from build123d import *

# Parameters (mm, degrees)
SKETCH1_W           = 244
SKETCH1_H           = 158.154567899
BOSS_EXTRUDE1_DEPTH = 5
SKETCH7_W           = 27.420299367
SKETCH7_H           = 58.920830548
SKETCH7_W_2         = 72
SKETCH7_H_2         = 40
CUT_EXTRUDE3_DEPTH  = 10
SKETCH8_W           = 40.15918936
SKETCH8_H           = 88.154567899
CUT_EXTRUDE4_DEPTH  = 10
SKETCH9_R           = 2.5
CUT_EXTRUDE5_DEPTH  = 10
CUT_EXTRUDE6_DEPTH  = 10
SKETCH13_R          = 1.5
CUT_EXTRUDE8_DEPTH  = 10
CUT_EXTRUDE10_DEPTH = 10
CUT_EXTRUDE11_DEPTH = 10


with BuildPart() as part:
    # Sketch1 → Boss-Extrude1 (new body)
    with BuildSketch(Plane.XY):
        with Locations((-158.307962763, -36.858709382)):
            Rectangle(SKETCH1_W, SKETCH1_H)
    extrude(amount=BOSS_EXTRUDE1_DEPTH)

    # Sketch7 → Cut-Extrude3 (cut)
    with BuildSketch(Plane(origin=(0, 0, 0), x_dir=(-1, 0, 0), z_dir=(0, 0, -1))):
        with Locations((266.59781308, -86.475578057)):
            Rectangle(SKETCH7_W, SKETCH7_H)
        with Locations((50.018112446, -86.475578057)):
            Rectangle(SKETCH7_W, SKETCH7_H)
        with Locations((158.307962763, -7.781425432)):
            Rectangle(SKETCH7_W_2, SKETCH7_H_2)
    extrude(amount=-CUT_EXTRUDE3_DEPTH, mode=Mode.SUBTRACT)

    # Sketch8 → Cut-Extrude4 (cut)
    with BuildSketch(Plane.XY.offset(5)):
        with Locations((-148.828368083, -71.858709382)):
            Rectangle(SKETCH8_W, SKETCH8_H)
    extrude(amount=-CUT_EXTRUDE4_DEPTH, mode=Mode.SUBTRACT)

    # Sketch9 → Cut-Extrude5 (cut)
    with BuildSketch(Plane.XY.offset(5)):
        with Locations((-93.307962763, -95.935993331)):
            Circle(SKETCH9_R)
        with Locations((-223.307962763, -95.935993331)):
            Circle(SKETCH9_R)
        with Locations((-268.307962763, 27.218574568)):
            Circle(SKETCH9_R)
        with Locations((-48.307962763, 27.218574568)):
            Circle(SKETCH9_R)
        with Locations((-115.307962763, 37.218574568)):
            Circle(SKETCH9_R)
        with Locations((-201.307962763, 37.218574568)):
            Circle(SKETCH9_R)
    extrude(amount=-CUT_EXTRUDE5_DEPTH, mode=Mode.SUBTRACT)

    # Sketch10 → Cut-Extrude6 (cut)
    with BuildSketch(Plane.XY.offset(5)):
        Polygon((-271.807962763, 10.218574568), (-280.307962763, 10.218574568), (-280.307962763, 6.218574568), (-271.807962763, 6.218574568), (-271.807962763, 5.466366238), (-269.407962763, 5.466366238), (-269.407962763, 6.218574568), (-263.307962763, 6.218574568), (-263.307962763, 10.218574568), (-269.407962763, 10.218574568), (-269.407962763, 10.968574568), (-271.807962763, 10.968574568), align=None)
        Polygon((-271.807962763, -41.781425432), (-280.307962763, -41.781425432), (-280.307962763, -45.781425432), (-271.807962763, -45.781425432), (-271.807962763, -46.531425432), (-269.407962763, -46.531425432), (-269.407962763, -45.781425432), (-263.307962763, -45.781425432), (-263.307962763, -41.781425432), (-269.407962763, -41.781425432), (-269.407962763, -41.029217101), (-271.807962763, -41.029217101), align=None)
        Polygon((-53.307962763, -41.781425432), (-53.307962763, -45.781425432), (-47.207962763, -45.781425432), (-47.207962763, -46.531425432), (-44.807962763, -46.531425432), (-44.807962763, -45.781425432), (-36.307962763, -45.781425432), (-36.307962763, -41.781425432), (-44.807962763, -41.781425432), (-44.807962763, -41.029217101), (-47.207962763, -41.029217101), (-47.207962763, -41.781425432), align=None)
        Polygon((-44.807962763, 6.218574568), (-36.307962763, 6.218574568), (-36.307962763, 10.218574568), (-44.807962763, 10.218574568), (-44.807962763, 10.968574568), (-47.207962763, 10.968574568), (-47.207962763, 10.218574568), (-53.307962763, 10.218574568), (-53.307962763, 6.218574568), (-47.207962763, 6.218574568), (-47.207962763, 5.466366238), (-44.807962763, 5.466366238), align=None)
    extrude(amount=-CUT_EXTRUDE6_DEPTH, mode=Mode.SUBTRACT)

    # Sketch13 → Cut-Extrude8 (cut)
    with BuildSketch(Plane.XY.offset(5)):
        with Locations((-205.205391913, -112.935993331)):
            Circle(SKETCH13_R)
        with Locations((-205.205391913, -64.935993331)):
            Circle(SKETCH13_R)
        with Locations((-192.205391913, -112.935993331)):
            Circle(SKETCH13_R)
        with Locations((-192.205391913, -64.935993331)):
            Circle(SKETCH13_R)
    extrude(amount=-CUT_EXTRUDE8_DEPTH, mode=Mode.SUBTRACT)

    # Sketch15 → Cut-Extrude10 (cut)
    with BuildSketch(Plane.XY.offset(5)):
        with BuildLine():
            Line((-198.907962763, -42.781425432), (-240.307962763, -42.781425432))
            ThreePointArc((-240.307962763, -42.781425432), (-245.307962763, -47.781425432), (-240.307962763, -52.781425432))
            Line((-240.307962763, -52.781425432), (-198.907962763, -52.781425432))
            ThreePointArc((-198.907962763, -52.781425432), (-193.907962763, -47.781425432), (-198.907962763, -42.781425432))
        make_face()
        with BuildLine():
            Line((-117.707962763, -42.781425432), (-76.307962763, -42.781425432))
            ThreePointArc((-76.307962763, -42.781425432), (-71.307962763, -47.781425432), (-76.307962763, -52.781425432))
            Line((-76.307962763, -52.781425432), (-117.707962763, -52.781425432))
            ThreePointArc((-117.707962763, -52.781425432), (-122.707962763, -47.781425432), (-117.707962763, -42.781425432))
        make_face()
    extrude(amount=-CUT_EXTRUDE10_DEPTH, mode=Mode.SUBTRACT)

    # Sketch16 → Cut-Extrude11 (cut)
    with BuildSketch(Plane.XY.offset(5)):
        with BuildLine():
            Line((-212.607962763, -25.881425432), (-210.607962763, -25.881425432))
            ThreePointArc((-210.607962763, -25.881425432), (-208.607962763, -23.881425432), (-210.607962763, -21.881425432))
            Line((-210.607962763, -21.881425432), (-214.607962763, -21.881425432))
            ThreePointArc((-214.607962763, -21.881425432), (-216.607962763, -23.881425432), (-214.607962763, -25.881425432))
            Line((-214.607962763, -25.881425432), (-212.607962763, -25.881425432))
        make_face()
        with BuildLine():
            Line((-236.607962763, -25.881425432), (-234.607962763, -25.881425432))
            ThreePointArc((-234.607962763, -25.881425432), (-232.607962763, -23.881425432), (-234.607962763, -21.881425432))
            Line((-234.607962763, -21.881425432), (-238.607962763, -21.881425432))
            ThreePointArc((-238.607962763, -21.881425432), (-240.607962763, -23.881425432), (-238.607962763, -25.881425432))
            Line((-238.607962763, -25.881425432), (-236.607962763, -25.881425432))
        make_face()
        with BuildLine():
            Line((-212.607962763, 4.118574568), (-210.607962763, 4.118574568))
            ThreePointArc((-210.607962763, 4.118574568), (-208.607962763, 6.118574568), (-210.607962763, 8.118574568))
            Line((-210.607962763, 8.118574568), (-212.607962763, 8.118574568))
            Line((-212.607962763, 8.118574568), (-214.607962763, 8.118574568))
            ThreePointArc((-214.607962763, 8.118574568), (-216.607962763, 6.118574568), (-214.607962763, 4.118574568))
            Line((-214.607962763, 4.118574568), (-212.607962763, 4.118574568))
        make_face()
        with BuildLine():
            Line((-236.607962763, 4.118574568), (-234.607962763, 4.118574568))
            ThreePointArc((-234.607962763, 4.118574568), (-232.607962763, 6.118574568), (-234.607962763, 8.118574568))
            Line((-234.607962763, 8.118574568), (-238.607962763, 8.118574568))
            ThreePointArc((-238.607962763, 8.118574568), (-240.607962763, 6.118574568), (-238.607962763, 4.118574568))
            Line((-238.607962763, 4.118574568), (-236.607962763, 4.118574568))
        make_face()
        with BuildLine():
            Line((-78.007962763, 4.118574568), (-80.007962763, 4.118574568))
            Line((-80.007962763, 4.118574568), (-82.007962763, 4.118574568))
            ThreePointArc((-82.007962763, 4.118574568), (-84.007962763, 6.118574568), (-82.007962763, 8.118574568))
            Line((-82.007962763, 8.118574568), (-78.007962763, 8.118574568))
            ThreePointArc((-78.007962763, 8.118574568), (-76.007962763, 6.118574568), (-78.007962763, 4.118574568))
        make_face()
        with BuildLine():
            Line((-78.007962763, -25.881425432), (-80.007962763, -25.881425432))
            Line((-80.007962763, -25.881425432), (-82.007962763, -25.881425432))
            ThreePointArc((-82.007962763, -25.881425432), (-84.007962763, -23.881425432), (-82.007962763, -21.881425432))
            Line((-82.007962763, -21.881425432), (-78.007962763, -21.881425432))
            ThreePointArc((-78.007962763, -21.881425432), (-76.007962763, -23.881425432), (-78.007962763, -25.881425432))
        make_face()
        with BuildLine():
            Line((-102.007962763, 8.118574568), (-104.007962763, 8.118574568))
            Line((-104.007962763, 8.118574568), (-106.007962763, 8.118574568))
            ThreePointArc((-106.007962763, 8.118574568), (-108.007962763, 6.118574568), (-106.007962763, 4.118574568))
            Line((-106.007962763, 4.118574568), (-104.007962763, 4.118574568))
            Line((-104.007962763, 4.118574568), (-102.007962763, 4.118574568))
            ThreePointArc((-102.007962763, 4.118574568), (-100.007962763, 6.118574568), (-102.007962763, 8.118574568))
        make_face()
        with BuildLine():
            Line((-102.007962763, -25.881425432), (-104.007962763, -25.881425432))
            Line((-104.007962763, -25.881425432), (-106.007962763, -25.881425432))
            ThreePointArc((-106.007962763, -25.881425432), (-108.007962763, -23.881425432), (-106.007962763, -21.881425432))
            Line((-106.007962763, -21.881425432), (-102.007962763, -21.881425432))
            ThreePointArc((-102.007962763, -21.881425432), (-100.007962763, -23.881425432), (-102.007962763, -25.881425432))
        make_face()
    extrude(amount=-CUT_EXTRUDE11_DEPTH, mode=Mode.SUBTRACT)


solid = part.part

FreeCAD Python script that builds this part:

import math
import FreeCAD as App
import Part
import Sketcher

V = App.Vector

doc = App.newDocument("Part")
params = doc.addObject("Spreadsheet::Sheet", "Params")
for row, (alias, value) in enumerate([
    ("sketch1_width", "244 mm"),
    ("pad1_length", "5 mm"),
    ("sketch2_width", "72 mm"),
    ("sketch2_height", "40 mm"),
    ("pocket1_length", "10 mm"),
    ("pocket2_length", "10 mm"),
    ("sketch4_diameter", "5 mm"),
    ("pocket3_length", "10 mm"),
    ("sketch5_height", "4 mm"),
    ("sketch5_width", "8.5 mm"),
    ("sketch5_width2", "2.4 mm"),
    ("sketch5_width3", "6.1 mm"),
    ("sketch5_height2", "0.75 mm"),
    ("pocket4_length", "10 mm"),
    ("sketch6_diameter", "3 mm"),
    ("pocket5_length", "10 mm"),
    ("sketch7_radius", "5 mm"),
    ("sketch7_width", "41.4 mm"),
    ("pocket6_length", "10 mm"),
    ("sketch8_radius", "2 mm"),
    ("sketch8_width", "4 mm"),
    ("pocket7_length", "10 mm"),
], start=1):
    params.set(f"A{row}", alias)
    params.set(f"B{row}", "=" + value)
    params.setAlias(f"B{row}", alias)

body = doc.addObject("PartDesign::Body", "Body")

# Sketch on XY plane
sketch1 = body.newObject("Sketcher::SketchObject", "Sketch")
sketch1.AttachmentSupport = (doc.getObject("XY_Plane"), [""])
sketch1.MapMode = "FlatFace"
sketch1.addGeometry([
    Part.LineSegment(V(-280, 42, 0), V(-280, -116, 0)),
    Part.LineSegment(V(-280, -116, 0), V(-36, -116, 0)),
    Part.LineSegment(V(-36, -116, 0), V(-36, 42, 0)),
    Part.LineSegment(V(-36, 42, 0), V(-280, 42, 0)),
], False)
sketch1.addConstraint([
    Sketcher.Constraint("Coincident", 0, 2, 1, 1),
    Sketcher.Constraint("Coincident", 1, 2, 2, 1),
    Sketcher.Constraint("Coincident", 2, 2, 3, 1),
    Sketcher.Constraint("Coincident", 3, 2, 0, 1),
    Sketcher.Constraint("Vertical", 0),
    Sketcher.Constraint("Horizontal", 1),
    Sketcher.Constraint("Vertical", 2),
    Sketcher.Constraint("Horizontal", 3),
    Sketcher.Constraint("DistanceX", 1, 1, 1, 2, 244.0),
    Sketcher.Constraint("DistanceY", 0, 2, 0, 1, 158.154568),
    Sketcher.Constraint("DistanceX", 0, 2, -1, 1, 280.307963),
    Sketcher.Constraint("DistanceY", 0, 2, -1, 1, 115.935993),
])
sketch1.setExpression("Constraints[8]", "Params.sketch1_width")
pad1 = body.newObject("PartDesign::Pad", "Pad")
pad1.Profile = sketch1
pad1.setExpression("Length", "Params.pad1_length")

# Sketch on XY plane
sketch2 = body.newObject("Sketcher::SketchObject", "Sketch001")
sketch2.AttachmentSupport = (doc.getObject("XY_Plane"), [""])
sketch2.MapMode = "FlatFace"
sketch2.addGeometry([
    Part.LineSegment(V(-253, -57, 0), V(-253, -116, 0)),  # 0
    Part.LineSegment(V(-253, -116, 0), V(-280, -116, 0)),  # 1
    Part.LineSegment(V(-280, -116, 0), V(-280, -57, 0)),  # 2
    Part.LineSegment(V(-280, -57, 0), V(-253, -57, 0)),  # 3
    Part.LineSegment(V(-36, -57, 0), V(-36, -116, 0)),  # 4
    Part.LineSegment(V(-36, -116, 0), V(-64, -116, 0)),  # 5
    Part.LineSegment(V(-64, -116, 0), V(-64, -57, 0)),  # 6
    Part.LineSegment(V(-64, -57, 0), V(-36, -57, 0)),  # 7
    Part.LineSegment(V(-122, 12, 0), V(-122, -28, 0)),  # 8
    Part.LineSegment(V(-122, -28, 0), V(-194, -28, 0)),  # 9
    Part.LineSegment(V(-194, -28, 0), V(-194, 12, 0)),  # 10
    Part.LineSegment(V(-194, 12, 0), V(-122, 12, 0)),  # 11
], False)
sketch2.addConstraint([
    Sketcher.Constraint("Coincident", 0, 2, 1, 1),
    Sketcher.Constraint("Coincident", 1, 2, 2, 1),
    Sketcher.Constraint("Coincident", 2, 2, 3, 1),
    Sketcher.Constraint("Coincident", 3, 2, 0, 1),
    Sketcher.Constraint("Coincident", 4, 2, 5, 1),
    Sketcher.Constraint("Coincident", 5, 2, 6, 1),
    Sketcher.Constraint("Coincident", 6, 2, 7, 1),
    Sketcher.Constraint("Coincident", 7, 2, 4, 1),
    Sketcher.Constraint("Coincident", 8, 2, 9, 1),
    Sketcher.Constraint("Coincident", 9, 2, 10, 1),
    Sketcher.Constraint("Coincident", 10, 2, 11, 1),
    Sketcher.Constraint("Coincident", 11, 2, 8, 1),
    Sketcher.Constraint("Vertical", 0),
    Sketcher.Constraint("Horizontal", 1),
    Sketcher.Constraint("Vertical", 2),
    Sketcher.Constraint("Horizontal", 3),
    Sketcher.Constraint("Vertical", 4),
    Sketcher.Constraint("Horizontal", 5),
    Sketcher.Constraint("Vertical", 6),
    Sketcher.Constraint("Horizontal", 7),
    Sketcher.Constraint("Vertical", 8),
    Sketcher.Constraint("Horizontal", 9),
    Sketcher.Constraint("Vertical", 10),
    Sketcher.Constraint("Horizontal", 11),
    Sketcher.Constraint("Horizontal", 1, 2, 4, 2),
    Sketcher.Constraint("Horizontal", 3, 2, 6, 2),
    Sketcher.Constraint("Equal", 3, 5),
    Sketcher.Constraint("DistanceX", 9, 2, 9, 1, 72.0),
    Sketcher.Constraint("DistanceY", 8, 2, 8, 1, 40.0),
    Sketcher.Constraint("DistanceX", 1, 2, 4, 2, 244.0),
    Sketcher.Constraint("DistanceX", 8, 2, 7, 2, 86.0),
    Sketcher.Constraint("DistanceX", 1, 2, 1, 1, 27.420299),
    Sketcher.Constraint("DistanceY", 0, 2, 0, 1, 58.920831),
    Sketcher.Constraint("DistanceX", 0, 2, -1, 1, 252.887663),
    Sketcher.Constraint("DistanceY", 0, 2, -1, 1, 115.935993),
    Sketcher.Constraint("DistanceY", 8, 2, -1, 1, 27.781425),
])
sketch2.setExpression("Constraints[27]", "Params.sketch2_width")
sketch2.setExpression("Constraints[28]", "Params.sketch2_height")
pocket1 = body.newObject("PartDesign::Pocket", "Pocket")
pocket1.Profile = sketch2
pocket1.setExpression("Length", "Params.pocket1_length")
pocket1.Reversed = True

# Sketch on XY plane
sketch3 = body.newObject("Sketcher::SketchObject", "Sketch002")
sketch3.AttachmentSupport = (doc.getObject("XY_Plane"), [""])
sketch3.MapMode = "FlatFace"
sketch3.AttachmentOffset = App.Placement(V(0, 0, 5), App.Rotation())
sketch3.addGeometry([
    Part.LineSegment(V(-169, -28, 0), V(-169, -116, 0)),
    Part.LineSegment(V(-169, -116, 0), V(-129, -116, 0)),
    Part.LineSegment(V(-129, -116, 0), V(-129, -28, 0)),
    Part.LineSegment(V(-129, -28, 0), V(-169, -28, 0)),
], False)
sketch3.addConstraint([
    Sketcher.Constraint("Coincident", 0, 2, 1, 1),
    Sketcher.Constraint("Coincident", 1, 2, 2, 1),
    Sketcher.Constraint("Coincident", 2, 2, 3, 1),
    Sketcher.Constraint("Coincident", 3, 2, 0, 1),
    Sketcher.Constraint("Vertical", 0),
    Sketcher.Constraint("Horizontal", 1),
    Sketcher.Constraint("Vertical", 2),
    Sketcher.Constraint("Horizontal", 3),
    Sketcher.Constraint("DistanceX", 1, 1, 1, 2, 40.159189),
    Sketcher.Constraint("DistanceY", 0, 2, 0, 1, 88.154568),
    Sketcher.Constraint("DistanceX", 0, 2, -1, 1, 168.907963),
    Sketcher.Constraint("DistanceY", 0, 2, -1, 1, 115.935993),
])
pocket2 = body.newObject("PartDesign::Pocket", "Pocket001")
pocket2.Profile = sketch3
pocket2.setExpression("Length", "Params.pocket2_length")

# Sketch on XY plane
sketch4 = body.newObject("Sketcher::SketchObject", "Sketch003")
sketch4.AttachmentSupport = (doc.getObject("XY_Plane"), [""])
sketch4.MapMode = "FlatFace"
sketch4.AttachmentOffset = App.Placement(V(0, 0, 5), App.Rotation())
sketch4.addGeometry([
    Part.Circle(V(-93.3, -95.9, 0), V(0, 0, 1), 2.5),  # 0
    Part.Circle(V(-223.3, -95.9, 0), V(0, 0, 1), 2.5),  # 1
    Part.Circle(V(-268.3, 27.2, 0), V(0, 0, 1), 2.5),  # 2
    Part.Circle(V(-48.3, 27.2, 0), V(0, 0, 1), 2.5),  # 3
    Part.Circle(V(-115.3, 37.2, 0), V(0, 0, 1), 2.5),  # 4
    Part.Circle(V(-201.3, 37.2, 0), V(0, 0, 1), 2.5),  # 5
], False)
sketch4.addConstraint([
    Sketcher.Constraint("Equal", 0, 1),
    Sketcher.Constraint("Equal", 1, 2),
    Sketcher.Constraint("Equal", 2, 3),
    Sketcher.Constraint("Equal", 3, 4),
    Sketcher.Constraint("Equal", 4, 5),
    Sketcher.Constraint("Horizontal", 0, 3, 1, 3),
    Sketcher.Constraint("Horizontal", 2, 3, 3, 3),
    Sketcher.Constraint("Horizontal", 4, 3, 5, 3),
    Sketcher.Constraint("Diameter", 0, 5.0),
    Sketcher.Constraint("DistanceX", 1, 3, 0, 3, 130.0),
    Sketcher.Constraint("DistanceX", 2, 3, 1, 3, 45.0),
    Sketcher.Constraint("DistanceX", 0, 3, 3, 3, 45.0),
    Sketcher.Constraint("DistanceX", 4, 3, 3, 3, 67.0),
    Sketcher.Constraint("DistanceY", 3, 3, 4, 3, 10.0),
    Sketcher.Constraint("DistanceX", 2, 3, 5, 3, 67.0),
    Sketcher.Constraint("DistanceX", 0, 3, -1, 1, 93.307963),
    Sketcher.Constraint("DistanceY", 0, 3, -1, 1, 95.935993),
    Sketcher.Constraint("DistanceY", -1, 1, 2, 3, 27.218575),
])
sketch4.setExpression("Constraints[8]", "Params.sketch4_diameter")
pocket3 = body.newObject("PartDesign::Pocket", "Pocket002")
pocket3.Profile = sketch4
pocket3.setExpression("Length", "Params.pocket3_length")

# Sketch on XY plane
sketch5 = body.newObject("Sketcher::SketchObject", "Sketch004")
sketch5.AttachmentSupport = (doc.getObject("XY_Plane"), [""])
sketch5.MapMode = "FlatFace"
sketch5.AttachmentOffset = App.Placement(V(0, 0, 5), App.Rotation())
sketch5.addGeometry([
    Part.LineSegment(V(-271.8, 10.2, 0), V(-280.3, 10.2, 0)),  # 0
    Part.LineSegment(V(-280.3, 10.2, 0), V(-280.3, 6.2, 0)),  # 1
    Part.LineSegment(V(-280.3, 6.2, 0), V(-271.8, 6.2, 0)),  # 2
    Part.LineSegment(V(-271.8, 6.2, 0), V(-271.8, 5.5, 0)),  # 3
    Part.LineSegment(V(-271.8, 5.5, 0), V(-269.4, 5.5, 0)),  # 4
    Part.LineSegment(V(-269.4, 5.5, 0), V(-269.4, 6.2, 0)),  # 5
    Part.LineSegment(V(-269.4, 6.2, 0), V(-263.3, 6.2, 0)),  # 6
    Part.LineSegment(V(-263.3, 6.2, 0), V(-263.3, 10.2, 0)),  # 7
    Part.LineSegment(V(-263.3, 10.2, 0), V(-269.4, 10.2, 0)),  # 8
    Part.LineSegment(V(-269.4, 10.2, 0), V(-269.4, 11, 0)),  # 9
    Part.LineSegment(V(-269.4, 11, 0), V(-271.8, 11, 0)),  # 10
    Part.LineSegment(V(-271.8, 11, 0), V(-271.8, 10.2, 0)),  # 11
    Part.LineSegment(V(-271.8, -41.8, 0), V(-280.3, -41.8, 0)),  # 12
    Part.LineSegment(V(-280.3, -41.8, 0), V(-280.3, -45.8, 0)),  # 13
    Part.LineSegment(V(-280.3, -45.8, 0), V(-271.8, -45.8, 0)),  # 14
    Part.LineSegment(V(-271.8, -45.8, 0), V(-271.8, -46.5, 0)),  # 15
    Part.LineSegment(V(-271.8, -46.5, 0), V(-269.4, -46.5, 0)),  # 16
    Part.LineSegment(V(-269.4, -46.5, 0), V(-269.4, -45.8, 0)),  # 17
    Part.LineSegment(V(-269.4, -45.8, 0), V(-263.3, -45.8, 0)),  # 18
    Part.LineSegment(V(-263.3, -45.8, 0), V(-263.3, -41.8, 0)),  # 19
    Part.LineSegment(V(-263.3, -41.8, 0), V(-269.4, -41.8, 0)),  # 20
    Part.LineSegment(V(-269.4, -41.8, 0), V(-269.4, -41, 0)),  # 21
    Part.LineSegment(V(-269.4, -41, 0), V(-271.8, -41, 0)),  # 22
    Part.LineSegment(V(-271.8, -41, 0), V(-271.8, -41.8, 0)),  # 23
    Part.LineSegment(V(-53.3, -41.8, 0), V(-53.3, -45.8, 0)),  # 24
    Part.LineSegment(V(-53.3, -45.8, 0), V(-47.2, -45.8, 0)),  # 25
    Part.LineSegment(V(-47.2, -45.8, 0), V(-47.2, -46.5, 0)),  # 26
    Part.LineSegment(V(-47.2, -46.5, 0), V(-44.8, -46.5, 0)),  # 27
    Part.LineSegment(V(-44.8, -46.5, 0), V(-44.8, -45.8, 0)),  # 28
    Part.LineSegment(V(-44.8, -45.8, 0), V(-36.3, -45.8, 0)),  # 29
    Part.LineSegment(V(-36.3, -45.8, 0), V(-36.3, -41.8, 0)),  # 30
    Part.LineSegment(V(-36.3, -41.8, 0), V(-44.8, -41.8, 0)),  # 31
    Part.LineSegment(V(-44.8, -41.8, 0), V(-44.8, -41, 0)),  # 32
    Part.LineSegment(V(-44.8, -41, 0), V(-47.2, -41, 0)),  # 33
    Part.LineSegment(V(-47.2, -41, 0), V(-47.2, -41.8, 0)),  # 34
    Part.LineSegment(V(-47.2, -41.8, 0), V(-53.3, -41.8, 0)),  # 35
    Part.LineSegment(V(-44.8, 6.2, 0), V(-36.3, 6.2, 0)),  # 36
    Part.LineSegment(V(-36.3, 6.2, 0), V(-36.3, 10.2, 0)),  # 37
    Part.LineSegment(V(-36.3, 10.2, 0), V(-44.8, 10.2, 0)),  # 38
    Part.LineSegment(V(-44.8, 10.2, 0), V(-44.8, 11, 0)),  # 39
    Part.LineSegment(V(-44.8, 11, 0), V(-47.2, 11, 0)),  # 40
    Part.LineSegment(V(-47.2, 11, 0), V(-47.2, 10.2, 0)),  # 41
    Part.LineSegment(V(-47.2, 10.2, 0), V(-53.3, 10.2, 0)),  # 42
    Part.LineSegment(V(-53.3, 10.2, 0), V(-53.3, 6.2, 0)),  # 43
    Part.LineSegment(V(-53.3, 6.2, 0), V(-47.2, 6.2, 0)),  # 44
    Part.LineSegment(V(-47.2, 6.2, 0), V(-47.2, 5.5, 0)),  # 45
    Part.LineSegment(V(-47.2, 5.5, 0), V(-44.8, 5.5, 0)),  # 46
    Part.LineSegment(V(-44.8, 5.5, 0), V(-44.8, 6.2, 0)),  # 47
], False)
sketch5.addConstraint([
    Sketcher.Constraint("Coincident", 0, 2, 1, 1),
    Sketcher.Constraint("Coincident", 1, 2, 2, 1),
    Sketcher.Constraint("Coincident", 2, 2, 3, 1),
    Sketcher.Constraint("Coincident", 3, 2, 4, 1),
    Sketcher.Constraint("Coincident", 4, 2, 5, 1),
    Sketcher.Constraint("Coincident", 5, 2, 6, 1),
    Sketcher.Constraint("Coincident", 6, 2, 7, 1),
    Sketcher.Constraint("Coincident", 7, 2, 8, 1),
    Sketcher.Constraint("Coincident", 8, 2, 9, 1),
    Sketcher.Constraint("Coincident", 9, 2, 10, 1),
    Sketcher.Constraint("Coincident", 10, 2, 11, 1),
    Sketcher.Constraint("Coincident", 11, 2, 0, 1),
    Sketcher.Constraint("Coincident", 12, 2, 13, 1),
    Sketcher.Constraint("Coincident", 13, 2, 14, 1),
    Sketcher.Constraint("Coincident", 14, 2, 15, 1),
    Sketcher.Constraint("Coincident", 15, 2, 16, 1),
    Sketcher.Constraint("Coincident", 16, 2, 17, 1),
    Sketcher.Constraint("Coincident", 17, 2, 18, 1),
    Sketcher.Constraint("Coincident", 18, 2, 19, 1),
    Sketcher.Constraint("Coincident", 19, 2, 20, 1),
    Sketcher.Constraint("Coincident", 20, 2, 21, 1),
    Sketcher.Constraint("Coincident", 21, 2, 22, 1),
    Sketcher.Constraint("Coincident", 22, 2, 23, 1),
    Sketcher.Constraint("Coincident", 23, 2, 12, 1),
    Sketcher.Constraint("Coincident", 24, 2, 25, 1),
    Sketcher.Constraint("Coincident", 25, 2, 26, 1),
    Sketcher.Constraint("Coincident", 26, 2, 27, 1),
    Sketcher.Constraint("Coincident", 27, 2, 28, 1),
    Sketcher.Constraint("Coincident", 28, 2, 29, 1),
    Sketcher.Constraint("Coincident", 29, 2, 30, 1),
    Sketcher.Constraint("Coincident", 30, 2, 31, 1),
    Sketcher.Constraint("Coincident", 31, 2, 32, 1),
    Sketcher.Constraint("Coincident", 32, 2, 33, 1),
    Sketcher.Constraint("Coincident", 33, 2, 34, 1),
    Sketcher.Constraint("Coincident", 34, 2, 35, 1),
    Sketcher.Constraint("Coincident", 35, 2, 24, 1),
    Sketcher.Constraint("Coincident", 36, 2, 37, 1),
    Sketcher.Constraint("Coincident", 37, 2, 38, 1),
    Sketcher.Constraint("Coincident", 38, 2, 39, 1),
    Sketcher.Constraint("Coincident", 39, 2, 40, 1),
    Sketcher.Constraint("Coincident", 40, 2, 41, 1),
    Sketcher.Constraint("Coincident", 41, 2, 42, 1),
    Sketcher.Constraint("Coincident", 42, 2, 43, 1),
    Sketcher.Constraint("Coincident", 43, 2, 44, 1),
    Sketcher.Constraint("Coincident", 44, 2, 45, 1),
    Sketcher.Constraint("Coincident", 45, 2, 46, 1),
    Sketcher.Constraint("Coincident", 46, 2, 47, 1),
    Sketcher.Constraint("Coincident", 47, 2, 36, 1),
    Sketcher.Constraint("Horizontal", 0),
    Sketcher.Constraint("Vertical", 1),
    Sketcher.Constraint("Horizontal", 2),
    Sketcher.Constraint("Vertical", 3),
    Sketcher.Constraint("Horizontal", 4),
    Sketcher.Constraint("Vertical", 5),
    Sketcher.Constraint("Horizontal", 6),
    Sketcher.Constraint("Vertical", 7),
    Sketcher.Constraint("Horizontal", 8),
    Sketcher.Constraint("Vertical", 9),
    Sketcher.Constraint("Horizontal", 10),
    Sketcher.Constraint("Vertical", 11),
    Sketcher.Constraint("Horizontal", 12),
    Sketcher.Constraint("Vertical", 13),
    Sketcher.Constraint("Horizontal", 14),
    Sketcher.Constraint("Vertical", 15),
    Sketcher.Constraint("Horizontal", 16),
    Sketcher.Constraint("Vertical", 17),
    Sketcher.Constraint("Horizontal", 18),
    Sketcher.Constraint("Vertical", 19),
    Sketcher.Constraint("Horizontal", 20),
    Sketcher.Constraint("Vertical", 21),
    Sketcher.Constraint("Horizontal", 22),
    Sketcher.Constraint("Vertical", 23),
    Sketcher.Constraint("Vertical", 24),
    Sketcher.Constraint("Horizontal", 25),
    Sketcher.Constraint("Vertical", 26),
    Sketcher.Constraint("Horizontal", 27),
    Sketcher.Constraint("Vertical", 28),
    Sketcher.Constraint("Horizontal", 29),
    Sketcher.Constraint("Vertical", 30),
    Sketcher.Constraint("Horizontal", 31),
    Sketcher.Constraint("Vertical", 32),
    Sketcher.Constraint("Horizontal", 33),
    Sketcher.Constraint("Vertical", 34),
    Sketcher.Constraint("Horizontal", 35),
    Sketcher.Constraint("Horizontal", 36),
    Sketcher.Constraint("Vertical", 37),
    Sketcher.Constraint("Horizontal", 38),
    Sketcher.Constraint("Vertical", 39),
    Sketcher.Constraint("Horizontal", 40),
    Sketcher.Constraint("Vertical", 41),
    Sketcher.Constraint("Horizontal", 42),
    Sketcher.Constraint("Vertical", 43),
    Sketcher.Constraint("Horizontal", 44),
    Sketcher.Constraint("Vertical", 45),
    Sketcher.Constraint("Horizontal", 46),
    Sketcher.Constraint("Vertical", 47),
    Sketcher.Constraint("Horizontal", 2, 2, 5, 2),
    Sketcher.Constraint("Horizontal", 0, 2, 7, 2),
    Sketcher.Constraint("Horizontal", 14, 2, 17, 2),
    Sketcher.Constraint("Horizontal", 12, 2, 19, 2),
    Sketcher.Constraint("Horizontal", 18, 2, 24, 2),
    Sketcher.Constraint("Horizontal", 16, 2, 26, 2),
    Sketcher.Constraint("Horizontal", 25, 2, 28, 2),
    Sketcher.Constraint("Horizontal", 23, 2, 30, 2),
    Sketcher.Constraint("Horizontal", 22, 2, 32, 2),
    Sketcher.Constraint("Horizontal", 31, 2, 34, 2),
    Sketcher.Constraint("Horizontal", 6, 2, 36, 2),
    Sketcher.Constraint("Horizontal", 11, 2, 37, 2),
    Sketcher.Constraint("Horizontal", 10, 2, 39, 2),
    Sketcher.Constraint("Horizontal", 38, 2, 41, 2),
    Sketcher.Constraint("Horizontal", 36, 2, 43, 2),
    Sketcher.Constraint("Horizontal", 4, 2, 45, 2),
    Sketcher.Constraint("Vertical", 5, 2, 8, 2),
    Sketcher.Constraint("Vertical", 3, 2, 10, 2),
    Sketcher.Constraint("Vertical", 1, 2, 12, 2),
    Sketcher.Constraint("Vertical", 11, 2, 14, 2),
    Sketcher.Constraint("Vertical", 9, 2, 16, 2),
    Sketcher.Constraint("Vertical", 7, 2, 18, 2),
    Sketcher.Constraint("Vertical", 17, 2, 20, 2),
    Sketcher.Constraint("Vertical", 15, 2, 22, 2),
    Sketcher.Constraint("Vertical", 28, 2, 31, 2),
    Sketcher.Constraint("Vertical", 26, 2, 33, 2),
    Sketcher.Constraint("Vertical", 30, 2, 36, 2),
    Sketcher.Constraint("Vertical", 32, 2, 38, 2),
    Sketcher.Constraint("Vertical", 34, 2, 40, 2),
    Sketcher.Constraint("Vertical", 35, 2, 42, 2),
    Sketcher.Constraint("Vertical", 41, 2, 44, 2),
    Sketcher.Constraint("Vertical", 39, 2, 46, 2),
    Sketcher.Constraint("Equal", 20, 25),
    Sketcher.Constraint("Equal", 22, 27),
    Sketcher.Constraint("Equal", 14, 29),
    Sketcher.Constraint("Equal", 7, 13),
    Sketcher.Constraint("Equal", 11, 15),
    Sketcher.Constraint("Equal", 5, 21),
    Sketcher.Constraint("DistanceY", 1, 2, 1, 1, 4.0),
    Sketcher.Constraint("DistanceX", 0, 2, 0, 1, 8.5),
    Sketcher.Constraint("DistanceX", 4, 1, 4, 2, 2.4),
    Sketcher.Constraint("DistanceX", 6, 1, 6, 2, 6.1),
    Sketcher.Constraint("DistanceY", 12, 2, 1, 2, 48.0),
    Sketcher.Constraint("DistanceX", 18, 2, 24, 2, 210.0),
    Sketcher.Constraint("DistanceY", 9, 1, 9, 2, 0.75),
    Sketcher.Constraint("DistanceY", 3, 2, 3, 1, 0.752208),
    Sketcher.Constraint("DistanceX", 0, 2, -1, 1, 280.307963),
    Sketcher.Constraint("DistanceY", -1, 1, 0, 2, 10.218575),
])
sketch5.setExpression("Constraints[134]", "Params.sketch5_height")
sketch5.setExpression("Constraints[135]", "Params.sketch5_width")
sketch5.setExpression("Constraints[136]", "Params.sketch5_width2")
sketch5.setExpression("Constraints[137]", "Params.sketch5_width3")
sketch5.setExpression("Constraints[140]", "Params.sketch5_height2")
pocket4 = body.newObject("PartDesign::Pocket", "Pocket003")
pocket4.Profile = sketch5
pocket4.setExpression("Length", "Params.pocket4_length")

# Sketch on XY plane
sketch6 = body.newObject("Sketcher::SketchObject", "Sketch005")
sketch6.AttachmentSupport = (doc.getObject("XY_Plane"), [""])
sketch6.MapMode = "FlatFace"
sketch6.AttachmentOffset = App.Placement(V(0, 0, 5), App.Rotation())
sketch6.addGeometry([
    Part.Circle(V(-205.2, -112.9, 0), V(0, 0, 1), 1.5),
    Part.Circle(V(-205.2, -64.9, 0), V(0, 0, 1), 1.5),
    Part.Circle(V(-192.2, -112.9, 0), V(0, 0, 1), 1.5),
    Part.Circle(V(-192.2, -64.9, 0), V(0, 0, 1), 1.5),
], False)
sketch6.addConstraint([
    Sketcher.Constraint("Equal", 0, 1),
    Sketcher.Constraint("Equal", 1, 2),
    Sketcher.Constraint("Equal", 2, 3),
    Sketcher.Constraint("Horizontal", 0, 3, 2, 3),
    Sketcher.Constraint("Horizontal", 1, 3, 3, 3),
    Sketcher.Constraint("Vertical", 0, 3, 1, 3),
    Sketcher.Constraint("Vertical", 2, 3, 3, 3),
    Sketcher.Constraint("Diameter", 0, 3.0),
    Sketcher.Constraint("DistanceY", 0, 3, 1, 3, 48.0),
    Sketcher.Constraint("DistanceX", 0, 3, 2, 3, 13.0),
    Sketcher.Constraint("DistanceX", 0, 3, -1, 1, 205.205392),
    Sketcher.Constraint("DistanceY", 0, 3, -1, 1, 112.935993),
])
sketch6.setExpression("Constraints[7]", "Params.sketch6_diameter")
pocket5 = body.newObject("PartDesign::Pocket", "Pocket004")
pocket5.Profile = sketch6
pocket5.setExpression("Length", "Params.pocket5_length")

# Sketch on XY plane
sketch7 = body.newObject("Sketcher::SketchObject", "Sketch006")
sketch7.AttachmentSupport = (doc.getObject("XY_Plane"), [""])
sketch7.MapMode = "FlatFace"
sketch7.AttachmentOffset = App.Placement(V(0, 0, 5), App.Rotation())
sketch7.addGeometry([
    Part.LineSegment(V(-199, -43, 0), V(-240, -43, 0)),  # 0
    Part.ArcOfCircle(Part.Circle(V(-240, -48, 0), V(0, 0, 1), 5), math.radians(90), math.radians(270)),  # 1
    Part.LineSegment(V(-240, -53, 0), V(-199, -53, 0)),  # 2
    Part.ArcOfCircle(Part.Circle(V(-199, -48, 0), V(0, 0, 1), 5), math.radians(-90), math.radians(90)),  # 3
    Part.LineSegment(V(-76, -43, 0), V(-118, -43, 0)),  # 4
    Part.ArcOfCircle(Part.Circle(V(-118, -48, 0), V(0, 0, 1), 5), math.radians(90), math.radians(270)),  # 5
    Part.LineSegment(V(-118, -53, 0), V(-76, -53, 0)),  # 6
    Part.ArcOfCircle(Part.Circle(V(-76, -48, 0), V(0, 0, 1), 5), math.radians(-90), math.radians(90)),  # 7
], False)
sketch7.addConstraint([
    Sketcher.Constraint("Tangent", 0, 2, 1, 1),
    Sketcher.Constraint("Tangent", 1, 2, 2, 1),
    Sketcher.Constraint("Tangent", 2, 2, 3, 1),
    Sketcher.Constraint("Tangent", 3, 2, 0, 1),
    Sketcher.Constraint("Tangent", 4, 2, 5, 1),
    Sketcher.Constraint("Tangent", 5, 2, 6, 1),
    Sketcher.Constraint("Tangent", 6, 2, 7, 1),
    Sketcher.Constraint("Tangent", 7, 2, 4, 1),
    Sketcher.Constraint("Horizontal", 0),
    Sketcher.Constraint("Horizontal", 2),
    Sketcher.Constraint("Horizontal", 4),
    Sketcher.Constraint("Horizontal", 6),
    Sketcher.Constraint("Equal", 3, 5),
    Sketcher.Constraint("Horizontal", 3, 3, 5, 3),
    Sketcher.Constraint("Equal", 2, 4),
    Sketcher.Constraint("Radius", 1, 5.0),
    Sketcher.Constraint("DistanceX", 0, 2, 0, 1, 41.4),
    Sketcher.Constraint("DistanceX", 1, 3, 7, 3, 164.0),
    Sketcher.Constraint("DistanceX", 1, 3, -1, 1, 240.307963),
    Sketcher.Constraint("DistanceY", 1, 3, -1, 1, 47.781425),
])
sketch7.setExpression("Constraints[15]", "Params.sketch7_radius")
sketch7.setExpression("Constraints[16]", "Params.sketch7_width")
pocket6 = body.newObject("PartDesign::Pocket", "Pocket005")
pocket6.Profile = sketch7
pocket6.setExpression("Length", "Params.pocket6_length")

# Sketch on XY plane
sketch8 = body.newObject("Sketcher::SketchObject", "Sketch007")
sketch8.AttachmentSupport = (doc.getObject("XY_Plane"), [""])
sketch8.MapMode = "FlatFace"
sketch8.AttachmentOffset = App.Placement(V(0, 0, 5), App.Rotation())
sketch8.addGeometry([
    Part.ArcOfCircle(Part.Circle(V(-210.6, -23.9, 0), V(0, 0, 1), 2), math.radians(-90), math.radians(90)),  # 0
    Part.LineSegment(V(-210.6, -21.9, 0), V(-214.6, -21.9, 0)),  # 1
    Part.ArcOfCircle(Part.Circle(V(-214.6, -23.9, 0), V(0, 0, 1), 2), math.radians(90), math.radians(270)),  # 2
    Part.LineSegment(V(-214.6, -25.9, 0), V(-210.6, -25.9, 0)),  # 3
    Part.ArcOfCircle(Part.Circle(V(-234.6, -23.9, 0), V(0, 0, 1), 2), math.radians(-90), math.radians(90)),  # 4
    Part.LineSegment(V(-234.6, -21.9, 0), V(-238.6, -21.9, 0)),  # 5
    Part.ArcOfCircle(Part.Circle(V(-238.6, -23.9, 0), V(0, 0, 1), 2), math.radians(90), math.radians(270)),  # 6
    Part.LineSegment(V(-238.6, -25.9, 0), V(-234.6, -25.9, 0)),  # 7
    Part.ArcOfCircle(Part.Circle(V(-210.6, 6.1, 0), V(0, 0, 1), 2), math.radians(-90), math.radians(90)),  # 8
    Part.LineSegment(V(-210.6, 8.1, 0), V(-214.6, 8.1, 0)),  # 9
    Part.ArcOfCircle(Part.Circle(V(-214.6, 6.1, 0), V(0, 0, 1), 2), math.radians(90), math.radians(270)),  # 10
    Part.LineSegment(V(-214.6, 4.1, 0), V(-210.6, 4.1, 0)),  # 11
    Part.ArcOfCircle(Part.Circle(V(-234.6, 6.1, 0), V(0, 0, 1), 2), math.radians(-90), math.radians(90)),  # 12
    Part.LineSegment(V(-234.6, 8.1, 0), V(-238.6, 8.1, 0)),  # 13
    Part.ArcOfCircle(Part.Circle(V(-238.6, 6.1, 0), V(0, 0, 1), 2), math.radians(90), math.radians(270)),  # 14
    Part.LineSegment(V(-238.6, 4.1, 0), V(-234.6, 4.1, 0)),  # 15
    Part.LineSegment(V(-82, 4.1, 0), V(-78, 4.1, 0)),  # 16
    Part.ArcOfCircle(Part.Circle(V(-78, 6.1, 0), V(0, 0, 1), 2), math.radians(-90), math.radians(90)),  # 17
    Part.LineSegment(V(-78, 8.1, 0), V(-82, 8.1, 0)),  # 18
    Part.ArcOfCircle(Part.Circle(V(-82, 6.1, 0), V(0, 0, 1), 2), math.radians(90), math.radians(270)),  # 19
    Part.LineSegment(V(-82, -25.9, 0), V(-78, -25.9, 0)),  # 20
    Part.ArcOfCircle(Part.Circle(V(-78, -23.9, 0), V(0, 0, 1), 2), math.radians(-90), math.radians(90)),  # 21
    Part.LineSegment(V(-78, -21.9, 0), V(-82, -21.9, 0)),  # 22
    Part.ArcOfCircle(Part.Circle(V(-82, -23.9, 0), V(0, 0, 1), 2), math.radians(90), math.radians(270)),  # 23
    Part.LineSegment(V(-102, 8.1, 0), V(-106, 8.1, 0)),  # 24
    Part.ArcOfCircle(Part.Circle(V(-106, 6.1, 0), V(0, 0, 1), 2), math.radians(90), math.radians(270)),  # 25
    Part.LineSegment(V(-106, 4.1, 0), V(-102, 4.1, 0)),  # 26
    Part.ArcOfCircle(Part.Circle(V(-102, 6.1, 0), V(0, 0, 1), 2), math.radians(-90), math.radians(90)),  # 27
    Part.LineSegment(V(-106, -25.9, 0), V(-102, -25.9, 0)),  # 28
    Part.ArcOfCircle(Part.Circle(V(-102, -23.9, 0), V(0, 0, 1), 2), math.radians(-90), math.radians(90)),  # 29
    Part.LineSegment(V(-102, -21.9, 0), V(-106, -21.9, 0)),  # 30
    Part.ArcOfCircle(Part.Circle(V(-106, -23.9, 0), V(0, 0, 1), 2), math.radians(90), math.radians(270)),  # 31
], False)
sketch8.addConstraint([
    Sketcher.Constraint("Tangent", 0, 2, 1, 1),
    Sketcher.Constraint("Tangent", 1, 2, 2, 1),
    Sketcher.Constraint("Tangent", 2, 2, 3, 1),
    Sketcher.Constraint("Tangent", 3, 2, 0, 1),
    Sketcher.Constraint("Tangent", 4, 2, 5, 1),
    Sketcher.Constraint("Tangent", 5, 2, 6, 1),
    Sketcher.Constraint("Tangent", 6, 2, 7, 1),
    Sketcher.Constraint("Tangent", 7, 2, 4, 1),
    Sketcher.Constraint("Tangent", 8, 2, 9, 1),
    Sketcher.Constraint("Tangent", 9, 2, 10, 1),
    Sketcher.Constraint("Tangent", 10, 2, 11, 1),
    Sketcher.Constraint("Tangent", 11, 2, 8, 1),
    Sketcher.Constraint("Tangent", 12, 2, 13, 1),
    Sketcher.Constraint("Tangent", 13, 2, 14, 1),
    Sketcher.Constraint("Tangent", 14, 2, 15, 1),
    Sketcher.Constraint("Tangent", 15, 2, 12, 1),
    Sketcher.Constraint("Tangent", 16, 2, 17, 1),
    Sketcher.Constraint("Tangent", 17, 2, 18, 1),
    Sketcher.Constraint("Tangent", 18, 2, 19, 1),
    Sketcher.Constraint("Tangent", 19, 2, 16, 1),
    Sketcher.Constraint("Tangent", 20, 2, 21, 1),
    Sketcher.Constraint("Tangent", 21, 2, 22, 1),
    Sketcher.Constraint("Tangent", 22, 2, 23, 1),
    Sketcher.Constraint("Tangent", 23, 2, 20, 1),
    Sketcher.Constraint("Tangent", 24, 2, 25, 1),
    Sketcher.Constraint("Tangent", 25, 2, 26, 1),
    Sketcher.Constraint("Tangent", 26, 2, 27, 1),
    Sketcher.Constraint("Tangent", 27, 2, 24, 1),
    Sketcher.Constraint("Tangent", 28, 2, 29, 1),
    Sketcher.Constraint("Tangent", 29, 2, 30, 1),
    Sketcher.Constraint("Tangent", 30, 2, 31, 1),
    Sketcher.Constraint("Tangent", 31, 2, 28, 1),
    Sketcher.Constraint("Horizontal", 1),
    Sketcher.Constraint("Horizontal", 3),
    Sketcher.Constraint("Horizontal", 5),
    Sketcher.Constraint("Horizontal", 7),
    Sketcher.Constraint("Horizontal", 9),
    Sketcher.Constraint("Horizontal", 11),
    Sketcher.Constraint("Horizontal", 13),
    Sketcher.Constraint("Horizontal", 15),
    Sketcher.Constraint("Horizontal", 16),
    Sketcher.Constraint("Horizontal", 18),
    Sketcher.Constraint("Horizontal", 20),
    Sketcher.Constraint("Horizontal", 22),
    Sketcher.Constraint("Horizontal", 24),
    Sketcher.Constraint("Horizontal", 26),
    Sketcher.Constraint("Horizontal", 28),
    Sketcher.Constraint("Horizontal", 30),
    Sketcher.Constraint("Equal", 2, 4),
    Sketcher.Constraint("Equal", 6, 8),
    Sketcher.Constraint("Equal", 10, 12),
    Sketcher.Constraint("Equal", 14, 17),
    Sketcher.Constraint("Equal", 19, 21),
    Sketcher.Constraint("Equal", 23, 25),
    Sketcher.Constraint("Equal", 27, 29),
    Sketcher.Constraint("Horizontal", 2, 3, 4, 3),
    Sketcher.Constraint("Horizontal", 10, 3, 12, 3),
    Sketcher.Constraint("Horizontal", 14, 3, 17, 3),
    Sketcher.Constraint("Horizontal", 6, 3, 21, 3),
    Sketcher.Constraint("Horizontal", 19, 3, 25, 3),
    Sketcher.Constraint("Horizontal", 23, 3, 29, 3),
    Sketcher.Constraint("Vertical", 0, 3, 8, 3),
    Sketcher.Constraint("Vertical", 2, 3, 10, 3),
    Sketcher.Constraint("Vertical", 4, 3, 12, 3),
    Sketcher.Constraint("Vertical", 6, 3, 14, 3),
    Sketcher.Constraint("Vertical", 17, 3, 21, 3),
    Sketcher.Constraint("Vertical", 19, 3, 23, 3),
    Sketcher.Constraint("Vertical", 27, 3, 29, 3),
    Sketcher.Constraint("Vertical", 25, 3, 31, 3),
    Sketcher.Constraint("Equal", 3, 5),
    Sketcher.Constraint("Equal", 15, 16),
    Sketcher.Constraint("Equal", 22, 24),
    Sketcher.Constraint("Radius", 0, 2.0),
    Sketcher.Constraint("DistanceX", 1, 2, 1, 1, 4.0),
    Sketcher.Constraint("DistanceX", 4, 3, 2, 3, 20.0),
    Sketcher.Constraint("DistanceY", 0, 3, 8, 3, 30.0),
    Sketcher.Constraint("DistanceX", 25, 3, 19, 3, 24.0),
    Sketcher.Constraint("DistanceX", 8, 3, 17, 3, 132.6),
    Sketcher.Constraint("DistanceX", 0, 3, -1, 1, 210.607963),
    Sketcher.Constraint("DistanceY", 0, 3, -1, 1, 23.881425),
])
sketch8.setExpression("Constraints[72]", "Params.sketch8_radius")
sketch8.setExpression("Constraints[73]", "Params.sketch8_width")
pocket7 = body.newObject("PartDesign::Pocket", "Pocket006")
pocket7.Profile = sketch8
pocket7.setExpression("Length", "Params.pocket7_length")

doc.recompute()
